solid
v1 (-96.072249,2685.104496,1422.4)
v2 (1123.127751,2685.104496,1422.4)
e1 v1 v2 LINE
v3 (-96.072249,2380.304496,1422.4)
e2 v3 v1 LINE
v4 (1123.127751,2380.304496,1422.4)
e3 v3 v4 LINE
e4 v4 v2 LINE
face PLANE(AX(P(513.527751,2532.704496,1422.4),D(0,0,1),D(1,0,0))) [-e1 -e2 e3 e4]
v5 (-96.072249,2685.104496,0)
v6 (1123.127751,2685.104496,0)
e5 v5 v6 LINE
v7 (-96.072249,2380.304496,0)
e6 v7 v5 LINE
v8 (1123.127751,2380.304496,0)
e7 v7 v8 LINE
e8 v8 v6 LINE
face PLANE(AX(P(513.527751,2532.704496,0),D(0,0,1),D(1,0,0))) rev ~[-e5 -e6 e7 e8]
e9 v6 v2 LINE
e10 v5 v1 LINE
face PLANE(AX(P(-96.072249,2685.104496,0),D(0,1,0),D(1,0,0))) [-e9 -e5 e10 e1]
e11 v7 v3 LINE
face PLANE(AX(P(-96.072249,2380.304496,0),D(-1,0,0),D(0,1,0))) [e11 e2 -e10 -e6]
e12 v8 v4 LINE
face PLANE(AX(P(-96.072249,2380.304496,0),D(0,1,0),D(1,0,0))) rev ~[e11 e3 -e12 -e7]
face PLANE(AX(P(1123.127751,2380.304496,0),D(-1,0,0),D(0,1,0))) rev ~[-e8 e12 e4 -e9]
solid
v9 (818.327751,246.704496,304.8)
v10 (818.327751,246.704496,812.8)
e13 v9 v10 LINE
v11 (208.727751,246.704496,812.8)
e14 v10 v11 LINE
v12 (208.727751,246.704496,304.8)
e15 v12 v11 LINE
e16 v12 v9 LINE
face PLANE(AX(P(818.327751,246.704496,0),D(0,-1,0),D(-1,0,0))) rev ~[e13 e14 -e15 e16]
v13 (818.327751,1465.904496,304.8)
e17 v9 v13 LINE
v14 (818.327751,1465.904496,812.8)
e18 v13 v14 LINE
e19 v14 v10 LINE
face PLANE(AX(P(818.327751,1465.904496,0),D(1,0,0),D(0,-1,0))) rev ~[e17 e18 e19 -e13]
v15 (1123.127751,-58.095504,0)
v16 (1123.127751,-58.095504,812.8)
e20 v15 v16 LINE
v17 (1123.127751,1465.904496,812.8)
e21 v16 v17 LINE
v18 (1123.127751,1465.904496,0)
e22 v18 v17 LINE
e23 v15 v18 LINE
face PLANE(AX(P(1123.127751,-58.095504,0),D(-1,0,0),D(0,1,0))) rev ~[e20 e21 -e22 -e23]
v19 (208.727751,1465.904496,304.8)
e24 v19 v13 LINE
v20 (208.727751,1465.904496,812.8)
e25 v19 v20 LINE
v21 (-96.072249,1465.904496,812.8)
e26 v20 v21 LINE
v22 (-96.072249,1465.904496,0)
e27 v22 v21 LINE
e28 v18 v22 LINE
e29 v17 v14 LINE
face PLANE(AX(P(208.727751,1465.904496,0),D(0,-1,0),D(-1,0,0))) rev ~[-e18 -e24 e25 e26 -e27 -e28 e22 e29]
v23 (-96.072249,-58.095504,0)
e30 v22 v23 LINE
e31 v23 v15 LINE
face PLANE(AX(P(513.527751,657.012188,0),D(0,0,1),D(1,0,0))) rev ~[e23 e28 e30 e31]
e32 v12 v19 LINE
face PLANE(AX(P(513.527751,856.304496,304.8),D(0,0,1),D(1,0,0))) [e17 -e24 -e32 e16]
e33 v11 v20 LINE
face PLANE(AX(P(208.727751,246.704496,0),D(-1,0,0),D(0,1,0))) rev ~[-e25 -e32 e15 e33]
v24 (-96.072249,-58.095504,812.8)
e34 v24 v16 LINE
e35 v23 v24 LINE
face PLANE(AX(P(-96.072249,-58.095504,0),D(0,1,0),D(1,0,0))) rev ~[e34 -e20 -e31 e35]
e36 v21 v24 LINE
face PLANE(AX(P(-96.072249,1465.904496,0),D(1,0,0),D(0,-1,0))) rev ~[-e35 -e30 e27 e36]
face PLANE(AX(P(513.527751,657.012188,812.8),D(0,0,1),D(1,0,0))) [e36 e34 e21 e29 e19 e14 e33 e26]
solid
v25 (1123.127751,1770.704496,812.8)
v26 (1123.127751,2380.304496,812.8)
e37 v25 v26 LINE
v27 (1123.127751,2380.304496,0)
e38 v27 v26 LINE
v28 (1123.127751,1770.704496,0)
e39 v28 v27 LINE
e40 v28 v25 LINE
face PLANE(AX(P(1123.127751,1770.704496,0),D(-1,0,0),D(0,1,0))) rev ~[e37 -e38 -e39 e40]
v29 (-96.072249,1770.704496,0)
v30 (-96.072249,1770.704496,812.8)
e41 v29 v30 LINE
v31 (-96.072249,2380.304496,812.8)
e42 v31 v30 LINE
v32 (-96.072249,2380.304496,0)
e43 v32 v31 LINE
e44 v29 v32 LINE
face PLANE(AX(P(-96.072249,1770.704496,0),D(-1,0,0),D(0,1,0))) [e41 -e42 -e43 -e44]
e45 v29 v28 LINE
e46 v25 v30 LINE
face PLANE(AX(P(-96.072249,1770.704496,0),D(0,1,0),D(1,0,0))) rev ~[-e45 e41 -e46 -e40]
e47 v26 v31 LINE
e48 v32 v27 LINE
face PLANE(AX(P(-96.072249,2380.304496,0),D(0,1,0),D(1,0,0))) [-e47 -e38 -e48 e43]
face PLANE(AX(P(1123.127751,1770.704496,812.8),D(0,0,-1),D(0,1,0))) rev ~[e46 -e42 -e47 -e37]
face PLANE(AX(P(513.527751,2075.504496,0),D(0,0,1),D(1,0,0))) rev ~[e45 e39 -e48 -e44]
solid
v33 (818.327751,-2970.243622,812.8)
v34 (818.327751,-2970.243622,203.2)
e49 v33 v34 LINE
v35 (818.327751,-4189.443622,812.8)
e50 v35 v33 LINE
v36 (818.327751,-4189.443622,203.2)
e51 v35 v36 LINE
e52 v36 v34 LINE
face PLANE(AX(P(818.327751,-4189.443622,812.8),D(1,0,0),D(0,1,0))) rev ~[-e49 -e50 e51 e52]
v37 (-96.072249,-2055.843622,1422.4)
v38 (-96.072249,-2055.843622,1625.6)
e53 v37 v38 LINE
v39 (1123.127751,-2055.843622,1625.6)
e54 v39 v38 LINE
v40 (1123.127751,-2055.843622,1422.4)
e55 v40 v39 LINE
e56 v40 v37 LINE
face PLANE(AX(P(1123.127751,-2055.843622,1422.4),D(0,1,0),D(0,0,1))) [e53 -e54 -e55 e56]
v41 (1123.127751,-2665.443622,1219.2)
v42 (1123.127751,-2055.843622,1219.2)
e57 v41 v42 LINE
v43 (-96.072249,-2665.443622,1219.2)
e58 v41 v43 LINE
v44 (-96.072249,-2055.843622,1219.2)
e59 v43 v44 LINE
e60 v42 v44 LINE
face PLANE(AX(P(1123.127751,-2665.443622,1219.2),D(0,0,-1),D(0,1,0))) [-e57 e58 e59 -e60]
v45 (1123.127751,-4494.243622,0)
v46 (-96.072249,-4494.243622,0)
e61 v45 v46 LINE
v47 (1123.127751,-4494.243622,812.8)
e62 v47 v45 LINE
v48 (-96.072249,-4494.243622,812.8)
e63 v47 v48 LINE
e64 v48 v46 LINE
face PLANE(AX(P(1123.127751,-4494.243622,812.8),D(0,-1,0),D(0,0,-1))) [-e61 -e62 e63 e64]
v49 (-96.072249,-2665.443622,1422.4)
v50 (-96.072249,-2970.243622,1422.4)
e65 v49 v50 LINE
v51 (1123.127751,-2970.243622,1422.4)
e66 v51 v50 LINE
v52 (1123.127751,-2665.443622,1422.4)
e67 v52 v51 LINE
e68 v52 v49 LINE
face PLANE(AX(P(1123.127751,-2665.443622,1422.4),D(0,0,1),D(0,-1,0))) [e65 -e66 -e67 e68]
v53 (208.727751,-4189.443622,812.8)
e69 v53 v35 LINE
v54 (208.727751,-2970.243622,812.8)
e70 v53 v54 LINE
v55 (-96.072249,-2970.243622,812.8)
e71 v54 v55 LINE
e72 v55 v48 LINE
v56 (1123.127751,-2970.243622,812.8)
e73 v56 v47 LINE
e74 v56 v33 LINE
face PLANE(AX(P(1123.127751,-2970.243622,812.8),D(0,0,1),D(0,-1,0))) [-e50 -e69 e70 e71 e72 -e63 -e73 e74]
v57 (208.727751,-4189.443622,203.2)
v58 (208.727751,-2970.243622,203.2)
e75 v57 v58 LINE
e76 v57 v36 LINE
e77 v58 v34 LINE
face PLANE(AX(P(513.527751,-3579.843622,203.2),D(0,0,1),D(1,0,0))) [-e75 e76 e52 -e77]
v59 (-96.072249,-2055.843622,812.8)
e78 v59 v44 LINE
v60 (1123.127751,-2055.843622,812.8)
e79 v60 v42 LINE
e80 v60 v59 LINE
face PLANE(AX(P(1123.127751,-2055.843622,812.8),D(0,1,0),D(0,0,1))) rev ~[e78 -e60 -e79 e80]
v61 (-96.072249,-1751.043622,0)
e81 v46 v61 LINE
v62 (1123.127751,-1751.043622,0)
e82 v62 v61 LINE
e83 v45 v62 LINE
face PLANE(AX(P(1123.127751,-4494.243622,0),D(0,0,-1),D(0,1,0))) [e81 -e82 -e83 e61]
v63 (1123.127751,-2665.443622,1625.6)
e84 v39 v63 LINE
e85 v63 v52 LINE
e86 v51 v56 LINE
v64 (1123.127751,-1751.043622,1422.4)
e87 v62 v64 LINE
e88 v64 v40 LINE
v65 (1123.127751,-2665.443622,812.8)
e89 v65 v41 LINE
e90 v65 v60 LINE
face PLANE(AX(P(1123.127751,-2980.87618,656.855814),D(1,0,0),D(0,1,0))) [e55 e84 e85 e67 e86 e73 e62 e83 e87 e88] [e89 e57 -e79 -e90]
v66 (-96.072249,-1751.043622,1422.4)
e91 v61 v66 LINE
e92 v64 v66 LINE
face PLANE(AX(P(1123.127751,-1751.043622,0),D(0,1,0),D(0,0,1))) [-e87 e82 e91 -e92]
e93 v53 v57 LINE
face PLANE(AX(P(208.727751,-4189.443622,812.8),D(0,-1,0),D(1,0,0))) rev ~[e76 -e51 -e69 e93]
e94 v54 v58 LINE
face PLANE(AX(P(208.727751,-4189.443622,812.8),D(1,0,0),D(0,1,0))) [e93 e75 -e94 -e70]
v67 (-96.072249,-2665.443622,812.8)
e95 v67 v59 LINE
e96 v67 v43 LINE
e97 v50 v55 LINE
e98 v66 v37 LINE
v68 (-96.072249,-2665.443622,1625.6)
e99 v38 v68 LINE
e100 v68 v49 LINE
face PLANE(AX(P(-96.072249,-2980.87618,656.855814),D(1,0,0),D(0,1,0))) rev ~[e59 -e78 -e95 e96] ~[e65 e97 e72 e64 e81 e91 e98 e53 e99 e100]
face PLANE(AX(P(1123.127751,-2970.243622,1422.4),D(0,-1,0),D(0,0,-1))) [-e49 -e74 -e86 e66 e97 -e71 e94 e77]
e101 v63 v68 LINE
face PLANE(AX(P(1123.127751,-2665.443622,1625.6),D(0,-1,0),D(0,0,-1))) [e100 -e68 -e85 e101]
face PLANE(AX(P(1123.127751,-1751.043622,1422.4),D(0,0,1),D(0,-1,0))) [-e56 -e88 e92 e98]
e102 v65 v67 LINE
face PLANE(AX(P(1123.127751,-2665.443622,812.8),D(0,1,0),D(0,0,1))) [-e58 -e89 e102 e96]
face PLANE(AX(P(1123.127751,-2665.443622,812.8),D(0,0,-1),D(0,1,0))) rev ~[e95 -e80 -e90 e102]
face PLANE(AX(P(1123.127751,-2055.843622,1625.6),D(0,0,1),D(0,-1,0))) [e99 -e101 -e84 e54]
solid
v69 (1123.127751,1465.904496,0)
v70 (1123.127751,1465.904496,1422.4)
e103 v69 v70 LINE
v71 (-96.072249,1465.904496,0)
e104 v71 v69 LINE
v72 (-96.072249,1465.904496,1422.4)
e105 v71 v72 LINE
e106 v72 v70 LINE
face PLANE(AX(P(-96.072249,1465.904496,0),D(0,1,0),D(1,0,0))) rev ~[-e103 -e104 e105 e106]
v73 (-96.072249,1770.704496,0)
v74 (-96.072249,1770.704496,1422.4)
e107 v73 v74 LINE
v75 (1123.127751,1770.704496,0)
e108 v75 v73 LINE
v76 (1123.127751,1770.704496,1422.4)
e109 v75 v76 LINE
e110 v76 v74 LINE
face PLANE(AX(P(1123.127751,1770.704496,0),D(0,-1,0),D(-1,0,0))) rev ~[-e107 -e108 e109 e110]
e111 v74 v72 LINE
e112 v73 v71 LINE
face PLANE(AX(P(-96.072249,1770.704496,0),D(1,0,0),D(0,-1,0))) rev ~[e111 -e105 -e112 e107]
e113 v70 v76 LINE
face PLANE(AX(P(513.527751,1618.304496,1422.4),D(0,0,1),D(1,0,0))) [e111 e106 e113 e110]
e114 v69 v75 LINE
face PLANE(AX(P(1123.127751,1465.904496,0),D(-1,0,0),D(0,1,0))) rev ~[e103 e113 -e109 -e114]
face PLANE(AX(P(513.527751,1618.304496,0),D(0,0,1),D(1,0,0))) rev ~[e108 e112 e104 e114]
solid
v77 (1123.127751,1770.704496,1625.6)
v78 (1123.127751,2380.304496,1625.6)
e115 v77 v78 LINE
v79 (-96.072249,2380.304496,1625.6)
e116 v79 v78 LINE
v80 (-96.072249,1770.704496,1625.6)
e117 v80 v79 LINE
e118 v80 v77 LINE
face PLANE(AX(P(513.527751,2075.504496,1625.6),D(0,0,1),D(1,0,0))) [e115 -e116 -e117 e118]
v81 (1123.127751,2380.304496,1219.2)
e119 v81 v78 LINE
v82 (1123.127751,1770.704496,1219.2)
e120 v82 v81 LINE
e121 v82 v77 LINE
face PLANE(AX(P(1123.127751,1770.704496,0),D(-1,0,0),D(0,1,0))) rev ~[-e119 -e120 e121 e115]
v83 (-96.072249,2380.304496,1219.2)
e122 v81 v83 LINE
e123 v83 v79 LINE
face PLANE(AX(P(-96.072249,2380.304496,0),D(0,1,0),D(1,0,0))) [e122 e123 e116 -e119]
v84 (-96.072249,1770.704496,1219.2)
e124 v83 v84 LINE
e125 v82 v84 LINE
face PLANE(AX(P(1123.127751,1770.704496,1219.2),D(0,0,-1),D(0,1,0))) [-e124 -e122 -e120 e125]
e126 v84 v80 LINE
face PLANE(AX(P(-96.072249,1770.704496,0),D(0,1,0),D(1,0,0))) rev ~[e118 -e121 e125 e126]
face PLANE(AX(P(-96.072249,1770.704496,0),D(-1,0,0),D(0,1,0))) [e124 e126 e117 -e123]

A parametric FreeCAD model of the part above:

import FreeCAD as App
import Part
import Sketcher

V = App.Vector
Q = App.Units.Quantity


def add_polygon(sketch, points):
    """Adds a closed chain of lines whose ends are joined by coincident constraints."""
    first, n = sketch.GeometryCount, len(points)
    for a, b in zip(points, points[1:] + points[:1]):
        sketch.addGeometry(Part.LineSegment(App.Vector(*a, 0), App.Vector(*b, 0)), False)
    for i in range(n):
        sketch.addConstraint(Sketcher.Constraint("Coincident", first + i, 2, first + (i + 1) % n, 1))

doc = App.newDocument("Part")
params = doc.addObject("Spreadsheet::Sheet", "Params")
for row, (alias, value) in enumerate([
    ("sketch1_width", "24 in"),
    ("sketch1_height", "48 in"),
    ("pad1_length", "12 in"),
    ("sketch2_width", "48 in"),
    ("sketch2_width2", "12 in"),
    ("sketch2_height", "60 in"),
    ("pad2_length", "32 in"),
    ("sketch3_width", "48 in"),
    ("sketch3_height", "12 in"),
    ("pad3_length", "56 in"),
    ("sketch4_width", "48 in"),
    ("sketch4_height", "24 in"),
    ("pad4_length", "64 in"),
    ("sketch5_width", "24 in"),
    ("sketch5_height", "16 in"),
    ("sketch6_width", "108 in"),
    ("sketch6_width2", "12 in"),
    ("sketch6_width3", "24 in"),
    ("sketch6_height", "32 in"),
    ("sketch6_height2", "8 in"),
    ("pad5_length", "48 in"),
    ("sketch7_width", "24 in"),
    ("sketch7_height", "48 in"),
    ("pocket2_length", "24 in"),
], start=1):
    params.set(f"A{row}", alias)
    params.set(f"B{row}", "=" + value)
    params.setAlias(f"B{row}", alias)

body = doc.addObject("PartDesign::Body", "Body")

sketch1 = body.newObject("Sketcher::SketchObject", "Sketch")
sketch1.AttachmentSupport = (doc.getObject("XY_Plane"), [""])
sketch1.MapMode = "FlatFace"
add_polygon(sketch1, [(208.727751, 1465.904496), (208.727751, 246.704496), (818.327751, 246.704496), (818.327751, 1465.904496)])
sketch1.addConstraint(Sketcher.Constraint("Vertical", 0))
sketch1.addConstraint(Sketcher.Constraint("Horizontal", 1))
sketch1.addConstraint(Sketcher.Constraint("Vertical", 2))
sketch1.addConstraint(Sketcher.Constraint("Horizontal", 3))
sketch1.addConstraint(Sketcher.Constraint("DistanceX", 1, 1, 1, 2, Q("24 in")))
sketch1.addConstraint(Sketcher.Constraint("DistanceY", 0, 2, 0, 1, Q("48 in")))
sketch1.addConstraint(Sketcher.Constraint("DistanceX", -1, 1, 0, 2, 208.727751))
sketch1.addConstraint(Sketcher.Constraint("DistanceY", -1, 1, 0, 2, 246.704496))
sketch1.setExpression("Constraints[8]", "Params.sketch1_width")
sketch1.setExpression("Constraints[9]", "Params.sketch1_height")
pad1 = body.newObject("PartDesign::Pad", "Pad")
pad1.Profile = sketch1
pad1.setExpression("Length", "Params.pad1_length")

sketch2 = body.newObject("Sketcher::SketchObject", "Sketch001")
sketch2.AttachmentSupport = (doc.getObject("XY_Plane"), [""])
sketch2.MapMode = "FlatFace"
add_polygon(sketch2, [(-96.072249, 1465.904496), (-96.072249, -58.095504), (1123.127751, -58.095504), (1123.127751, 1465.904496), (818.327751, 1465.904496), (818.327751, 246.704496), (208.727751, 246.704496), (208.727751, 1465.904496)])
sketch2.addConstraint(Sketcher.Constraint("Vertical", 0))
sketch2.addConstraint(Sketcher.Constraint("Horizontal", 1))
sketch2.addConstraint(Sketcher.Constraint("Vertical", 2))
sketch2.addConstraint(Sketcher.Constraint("Horizontal", 3))
sketch2.addConstraint(Sketcher.Constraint("Vertical", 4))
sketch2.addConstraint(Sketcher.Constraint("Horizontal", 5))
sketch2.addConstraint(Sketcher.Constraint("Vertical", 6))
sketch2.addConstraint(Sketcher.Constraint("Horizontal", 7))
sketch2.addConstraint(Sketcher.Constraint("Horizontal", 3, 2, 6, 2))
sketch2.addConstraint(Sketcher.Constraint("Equal", 3, 7))
sketch2.addConstraint(Sketcher.Constraint("Equal", 1, 4))
sketch2.addConstraint(Sketcher.Constraint("DistanceX", 1, 1, 1, 2, Q("48 in")))
sketch2.addConstraint(Sketcher.Constraint("DistanceX", 3, 2, 3, 1, Q("12 in")))
sketch2.addConstraint(Sketcher.Constraint("DistanceY", 0, 2, 0, 1, Q("60 in")))
sketch2.addConstraint(Sketcher.Constraint("DistanceX", 0, 2, -1, 1, 96.072249))
sketch2.addConstraint(Sketcher.Constraint("DistanceY", 0, 2, -1, 1, 58.095504))
sketch2.setExpression("Constraints[19]", "Params.sketch2_width")
sketch2.setExpression("Constraints[20]", "Params.sketch2_width2")
sketch2.setExpression("Constraints[21]", "Params.sketch2_height")
pad2 = body.newObject("PartDesign::Pad", "Pad001")
pad2.Profile = sketch2
pad2.setExpression("Length", "Params.pad2_length")
body2 = doc.addObject("PartDesign::Body", "Body001")
body2.AllowCompound = True

sketch3 = body2.newObject("Sketcher::SketchObject", "Sketch002")
sketch3.AttachmentSupport = (doc.getObject("XY_Plane001"), [""])
sketch3.MapMode = "FlatFace"
add_polygon(sketch3, [(-96.072249, 1770.704496), (-96.072249, 1465.904496), (1123.127751, 1465.904496), (1123.127751, 1770.704496)])
add_polygon(sketch3, [(-96.072249, 2685.104496), (-96.072249, 2380.304496), (1123.127751, 2380.304496), (1123.127751, 2685.104496)])
sketch3.addConstraint(Sketcher.Constraint("Vertical", 0))
sketch3.addConstraint(Sketcher.Constraint("Horizontal", 1))
sketch3.addConstraint(Sketcher.Constraint("Vertical", 2))
sketch3.addConstraint(Sketcher.Constraint("Horizontal", 3))
sketch3.addConstraint(Sketcher.Constraint("Vertical", 4))
sketch3.addConstraint(Sketcher.Constraint("Horizontal", 5))
sketch3.addConstraint(Sketcher.Constraint("Vertical", 6))
sketch3.addConstraint(Sketcher.Constraint("Horizontal", 7))
sketch3.addConstraint(Sketcher.Constraint("Vertical", 3, 2, 4, 2))
sketch3.addConstraint(Sketcher.Constraint("Vertical", 2, 2, 5, 2))
sketch3.addConstraint(Sketcher.Constraint("Equal", 2, 4))
sketch3.addConstraint(Sketcher.Constraint("DistanceX", 1, 1, 1, 2, Q("48 in")))
sketch3.addConstraint(Sketcher.Constraint("DistanceY", 0, 2, 0, 1, Q("12 in")))
sketch3.addConstraint(Sketcher.Constraint("DistanceY", 3, 2, 4, 2, Q("24 in")))
sketch3.addConstraint(Sketcher.Constraint("DistanceX", 0, 2, -1, 1, 96.072249))
sketch3.addConstraint(Sketcher.Constraint("DistanceY", -1, 1, 0, 2, 1465.904496))
sketch3.setExpression("Constraints[19]", "Params.sketch3_width")
sketch3.setExpression("Constraints[20]", "Params.sketch3_height")
pad3 = body2.newObject("PartDesign::Pad", "Pad002")
pad3.Profile = sketch3
pad3.setExpression("Length", "Params.pad3_length")
body3 = doc.addObject("PartDesign::Body", "Body002")
body3.AllowCompound = True

sketch4 = body3.newObject("Sketcher::SketchObject", "Sketch003")
sketch4.AttachmentSupport = (doc.getObject("XY_Plane002"), [""])
sketch4.MapMode = "FlatFace"
add_polygon(sketch4, [(-96.072249, 2380.304496), (-96.072249, 1770.704496), (1123.127751, 1770.704496), (1123.127751, 2380.304496)])
sketch4.addConstraint(Sketcher.Constraint("Vertical", 0))
sketch4.addConstraint(Sketcher.Constraint("Horizontal", 1))
sketch4.addConstraint(Sketcher.Constraint("Vertical", 2))
sketch4.addConstraint(Sketcher.Constraint("Horizontal", 3))
sketch4.addConstraint(Sketcher.Constraint("DistanceX", 1, 1, 1, 2, Q("48 in")))
sketch4.addConstraint(Sketcher.Constraint("DistanceY", 0, 2, 0, 1, Q("24 in")))
sketch4.addConstraint(Sketcher.Constraint("DistanceX", 0, 2, -1, 1, 96.072249))
sketch4.addConstraint(Sketcher.Constraint("DistanceY", -1, 1, 0, 2, 1770.704496))
sketch4.setExpression("Constraints[8]", "Params.sketch4_width")
sketch4.setExpression("Constraints[9]", "Params.sketch4_height")
pad4 = body3.newObject("PartDesign::Pad", "Pad003")
pad4.Profile = sketch4
pad4.setExpression("Length", "Params.pad4_length")

sketch5 = body3.newObject("Sketcher::SketchObject", "Sketch004")
sketch5.AttachmentSupport = (doc.getObject("YZ_Plane002"), [""])
sketch5.MapMode = "FlatFace"
sketch5.AttachmentOffset = App.Placement(V(0, 0, 1123.127751), App.Rotation())
add_polygon(sketch5, [(1770.704496, 1219.2), (1770.704496, 812.8), (2380.304496, 812.8), (2380.304496, 1219.2)])
sketch5.addConstraint(Sketcher.Constraint("Vertical", 0))
sketch5.addConstraint(Sketcher.Constraint("Horizontal", 1))
sketch5.addConstraint(Sketcher.Constraint("Vertical", 2))
sketch5.addConstraint(Sketcher.Constraint("Horizontal", 3))
sketch5.addConstraint(Sketcher.Constraint("DistanceX", 1, 1, 1, 2, Q("24 in")))
sketch5.addConstraint(Sketcher.Constraint("DistanceY", 0, 2, 0, 1, Q("16 in")))
sketch5.addConstraint(Sketcher.Constraint("DistanceY", -1, 1, 0, 2, Q("32 in")))
sketch5.addConstraint(Sketcher.Constraint("DistanceX", -1, 1, 0, 2, 1770.704496))
sketch5.setExpression("Constraints[8]", "Params.sketch5_width")
sketch5.setExpression("Constraints[9]", "Params.sketch5_height")
pocket1 = body3.newObject("PartDesign::Pocket", "Pocket")
pocket1.Profile = sketch5
pocket1.Type = "ThroughAll"
body4 = doc.addObject("PartDesign::Body", "Body003")

sketch6 = body4.newObject("Sketcher::SketchObject", "Sketch005")
sketch6.AttachmentSupport = (doc.getObject("YZ_Plane003"), [""])
sketch6.MapMode = "FlatFace"
sketch6.AttachmentOffset = App.Placement(V(0, 0, 1123.127751), App.Rotation())
add_polygon(sketch6, [(-4494.243622, 812.8), (-4494.243622, 0), (-1751.043622, 0), (-1751.043622, 1422.4), (-2055.843622, 1422.4), (-2055.843622, 1625.6), (-2665.443622, 1625.6), (-2665.443622, 1422.4), (-2970.243622, 1422.4), (-2970.243622, 812.8)])
add_polygon(sketch6, [(-2055.843622, 812.8), (-2665.443622, 812.8), (-2665.443622, 1219.2), (-2055.843622, 1219.2)])
sketch6.addConstraint(Sketcher.Constraint("Vertical", 0))
sketch6.addConstraint(Sketcher.Constraint("Horizontal", 1))
sketch6.addConstraint(Sketcher.Constraint("Vertical", 2))
sketch6.addConstraint(Sketcher.Constraint("Horizontal", 3))
sketch6.addConstraint(Sketcher.Constraint("Vertical", 4))
sketch6.addConstraint(Sketcher.Constraint("Horizontal", 5))
sketch6.addConstraint(Sketcher.Constraint("Vertical", 6))
sketch6.addConstraint(Sketcher.Constraint("Horizontal", 7))
sketch6.addConstraint(Sketcher.Constraint("Vertical", 8))
sketch6.addConstraint(Sketcher.Constraint("Horizontal", 9))
sketch6.addConstraint(Sketcher.Constraint("Horizontal", 10))
sketch6.addConstraint(Sketcher.Constraint("Vertical", 11))
sketch6.addConstraint(Sketcher.Constraint("Horizontal", 12))
sketch6.addConstraint(Sketcher.Constraint("Vertical", 13))
sketch6.addConstraint(Sketcher.Constraint("PointOnObject", 0, 2, -1))
sketch6.addConstraint(Sketcher.Constraint("Horizontal", 3, 2, 6, 2))
sketch6.addConstraint(Sketcher.Constraint("Horizontal", 9, 2, 10, 2))
sketch6.addConstraint(Sketcher.Constraint("Vertical", 6, 2, 10, 2))
sketch6.addConstraint(Sketcher.Constraint("Vertical", 4, 2, 12, 2))
sketch6.addConstraint(Sketcher.Constraint("Equal", 3, 7))
sketch6.addConstraint(Sketcher.Constraint("Equal", 12, 8))
sketch6.addConstraint(Sketcher.Constraint("DistanceX", 1, 1, 1, 2, Q("108 in")))
sketch6.addConstraint(Sketcher.Constraint("DistanceX", 3, 2, 3, 1, Q("12 in")))
sketch6.addConstraint(Sketcher.Constraint("DistanceX", 5, 2, 5, 1, Q("24 in")))
sketch6.addConstraint(Sketcher.Constraint("DistanceY", 0, 2, 0, 1, Q("32 in")))
sketch6.addConstraint(Sketcher.Constraint("DistanceY", 4, 1, 4, 2, Q("8 in")))
sketch6.addConstraint(Sketcher.Constraint("DistanceY", 11, 1, 11, 2, Q("16 in")))
sketch6.addConstraint(Sketcher.Constraint("DistanceX", 0, 2, -1, 1, 4494.243622))
sketch6.setExpression("Constraints[35]", "Params.sketch6_width")
sketch6.setExpression("Constraints[36]", "Params.sketch6_width2")
sketch6.setExpression("Constraints[37]", "Params.sketch6_width3")
sketch6.setExpression("Constraints[38]", "Params.sketch6_height")
sketch6.setExpression("Constraints[39]", "Params.sketch6_height2")
pad5 = body4.newObject("PartDesign::Pad", "Pad004")
pad5.Profile = sketch6
pad5.setExpression("Length", "Params.pad5_length")
pad5.Reversed = True

sketch7 = body4.newObject("Sketcher::SketchObject", "Sketch006")
sketch7.AttachmentSupport = (doc.getObject("XY_Plane003"), [""])
sketch7.MapMode = "FlatFace"
sketch7.AttachmentOffset = App.Placement(V(0, 0, 32 * 25.4), App.Rotation())
add_polygon(sketch7, [(208.727751, -2970.243622), (208.727751, -4189.443622), (818.327751, -4189.443622), (818.327751, -2970.243622)])
sketch7.addConstraint(Sketcher.Constraint("Vertical", 0))
sketch7.addConstraint(Sketcher.Constraint("Horizontal", 1))
sketch7.addConstraint(Sketcher.Constraint("Vertical", 2))
sketch7.addConstraint(Sketcher.Constraint("Horizontal", 3))
sketch7.addConstraint(Sketcher.Constraint("DistanceX", 1, 1, 1, 2, Q("24 in")))
sketch7.addConstraint(Sketcher.Constraint("DistanceY", 0, 2, 0, 1, Q("48 in")))
sketch7.addConstraint(Sketcher.Constraint("DistanceX", -1, 1, 0, 2, 208.727751))
sketch7.addConstraint(Sketcher.Constraint("DistanceY", 0, 2, -1, 1, 4189.443622))
sketch7.setExpression("Constraints[8]", "Params.sketch7_width")
sketch7.setExpression("Constraints[9]", "Params.sketch7_height")
pocket2 = body4.newObject("PartDesign::Pocket", "Pocket001")
pocket2.Profile = sketch7
pocket2.setExpression("Length", "Params.pocket2_length")

doc.recompute()
